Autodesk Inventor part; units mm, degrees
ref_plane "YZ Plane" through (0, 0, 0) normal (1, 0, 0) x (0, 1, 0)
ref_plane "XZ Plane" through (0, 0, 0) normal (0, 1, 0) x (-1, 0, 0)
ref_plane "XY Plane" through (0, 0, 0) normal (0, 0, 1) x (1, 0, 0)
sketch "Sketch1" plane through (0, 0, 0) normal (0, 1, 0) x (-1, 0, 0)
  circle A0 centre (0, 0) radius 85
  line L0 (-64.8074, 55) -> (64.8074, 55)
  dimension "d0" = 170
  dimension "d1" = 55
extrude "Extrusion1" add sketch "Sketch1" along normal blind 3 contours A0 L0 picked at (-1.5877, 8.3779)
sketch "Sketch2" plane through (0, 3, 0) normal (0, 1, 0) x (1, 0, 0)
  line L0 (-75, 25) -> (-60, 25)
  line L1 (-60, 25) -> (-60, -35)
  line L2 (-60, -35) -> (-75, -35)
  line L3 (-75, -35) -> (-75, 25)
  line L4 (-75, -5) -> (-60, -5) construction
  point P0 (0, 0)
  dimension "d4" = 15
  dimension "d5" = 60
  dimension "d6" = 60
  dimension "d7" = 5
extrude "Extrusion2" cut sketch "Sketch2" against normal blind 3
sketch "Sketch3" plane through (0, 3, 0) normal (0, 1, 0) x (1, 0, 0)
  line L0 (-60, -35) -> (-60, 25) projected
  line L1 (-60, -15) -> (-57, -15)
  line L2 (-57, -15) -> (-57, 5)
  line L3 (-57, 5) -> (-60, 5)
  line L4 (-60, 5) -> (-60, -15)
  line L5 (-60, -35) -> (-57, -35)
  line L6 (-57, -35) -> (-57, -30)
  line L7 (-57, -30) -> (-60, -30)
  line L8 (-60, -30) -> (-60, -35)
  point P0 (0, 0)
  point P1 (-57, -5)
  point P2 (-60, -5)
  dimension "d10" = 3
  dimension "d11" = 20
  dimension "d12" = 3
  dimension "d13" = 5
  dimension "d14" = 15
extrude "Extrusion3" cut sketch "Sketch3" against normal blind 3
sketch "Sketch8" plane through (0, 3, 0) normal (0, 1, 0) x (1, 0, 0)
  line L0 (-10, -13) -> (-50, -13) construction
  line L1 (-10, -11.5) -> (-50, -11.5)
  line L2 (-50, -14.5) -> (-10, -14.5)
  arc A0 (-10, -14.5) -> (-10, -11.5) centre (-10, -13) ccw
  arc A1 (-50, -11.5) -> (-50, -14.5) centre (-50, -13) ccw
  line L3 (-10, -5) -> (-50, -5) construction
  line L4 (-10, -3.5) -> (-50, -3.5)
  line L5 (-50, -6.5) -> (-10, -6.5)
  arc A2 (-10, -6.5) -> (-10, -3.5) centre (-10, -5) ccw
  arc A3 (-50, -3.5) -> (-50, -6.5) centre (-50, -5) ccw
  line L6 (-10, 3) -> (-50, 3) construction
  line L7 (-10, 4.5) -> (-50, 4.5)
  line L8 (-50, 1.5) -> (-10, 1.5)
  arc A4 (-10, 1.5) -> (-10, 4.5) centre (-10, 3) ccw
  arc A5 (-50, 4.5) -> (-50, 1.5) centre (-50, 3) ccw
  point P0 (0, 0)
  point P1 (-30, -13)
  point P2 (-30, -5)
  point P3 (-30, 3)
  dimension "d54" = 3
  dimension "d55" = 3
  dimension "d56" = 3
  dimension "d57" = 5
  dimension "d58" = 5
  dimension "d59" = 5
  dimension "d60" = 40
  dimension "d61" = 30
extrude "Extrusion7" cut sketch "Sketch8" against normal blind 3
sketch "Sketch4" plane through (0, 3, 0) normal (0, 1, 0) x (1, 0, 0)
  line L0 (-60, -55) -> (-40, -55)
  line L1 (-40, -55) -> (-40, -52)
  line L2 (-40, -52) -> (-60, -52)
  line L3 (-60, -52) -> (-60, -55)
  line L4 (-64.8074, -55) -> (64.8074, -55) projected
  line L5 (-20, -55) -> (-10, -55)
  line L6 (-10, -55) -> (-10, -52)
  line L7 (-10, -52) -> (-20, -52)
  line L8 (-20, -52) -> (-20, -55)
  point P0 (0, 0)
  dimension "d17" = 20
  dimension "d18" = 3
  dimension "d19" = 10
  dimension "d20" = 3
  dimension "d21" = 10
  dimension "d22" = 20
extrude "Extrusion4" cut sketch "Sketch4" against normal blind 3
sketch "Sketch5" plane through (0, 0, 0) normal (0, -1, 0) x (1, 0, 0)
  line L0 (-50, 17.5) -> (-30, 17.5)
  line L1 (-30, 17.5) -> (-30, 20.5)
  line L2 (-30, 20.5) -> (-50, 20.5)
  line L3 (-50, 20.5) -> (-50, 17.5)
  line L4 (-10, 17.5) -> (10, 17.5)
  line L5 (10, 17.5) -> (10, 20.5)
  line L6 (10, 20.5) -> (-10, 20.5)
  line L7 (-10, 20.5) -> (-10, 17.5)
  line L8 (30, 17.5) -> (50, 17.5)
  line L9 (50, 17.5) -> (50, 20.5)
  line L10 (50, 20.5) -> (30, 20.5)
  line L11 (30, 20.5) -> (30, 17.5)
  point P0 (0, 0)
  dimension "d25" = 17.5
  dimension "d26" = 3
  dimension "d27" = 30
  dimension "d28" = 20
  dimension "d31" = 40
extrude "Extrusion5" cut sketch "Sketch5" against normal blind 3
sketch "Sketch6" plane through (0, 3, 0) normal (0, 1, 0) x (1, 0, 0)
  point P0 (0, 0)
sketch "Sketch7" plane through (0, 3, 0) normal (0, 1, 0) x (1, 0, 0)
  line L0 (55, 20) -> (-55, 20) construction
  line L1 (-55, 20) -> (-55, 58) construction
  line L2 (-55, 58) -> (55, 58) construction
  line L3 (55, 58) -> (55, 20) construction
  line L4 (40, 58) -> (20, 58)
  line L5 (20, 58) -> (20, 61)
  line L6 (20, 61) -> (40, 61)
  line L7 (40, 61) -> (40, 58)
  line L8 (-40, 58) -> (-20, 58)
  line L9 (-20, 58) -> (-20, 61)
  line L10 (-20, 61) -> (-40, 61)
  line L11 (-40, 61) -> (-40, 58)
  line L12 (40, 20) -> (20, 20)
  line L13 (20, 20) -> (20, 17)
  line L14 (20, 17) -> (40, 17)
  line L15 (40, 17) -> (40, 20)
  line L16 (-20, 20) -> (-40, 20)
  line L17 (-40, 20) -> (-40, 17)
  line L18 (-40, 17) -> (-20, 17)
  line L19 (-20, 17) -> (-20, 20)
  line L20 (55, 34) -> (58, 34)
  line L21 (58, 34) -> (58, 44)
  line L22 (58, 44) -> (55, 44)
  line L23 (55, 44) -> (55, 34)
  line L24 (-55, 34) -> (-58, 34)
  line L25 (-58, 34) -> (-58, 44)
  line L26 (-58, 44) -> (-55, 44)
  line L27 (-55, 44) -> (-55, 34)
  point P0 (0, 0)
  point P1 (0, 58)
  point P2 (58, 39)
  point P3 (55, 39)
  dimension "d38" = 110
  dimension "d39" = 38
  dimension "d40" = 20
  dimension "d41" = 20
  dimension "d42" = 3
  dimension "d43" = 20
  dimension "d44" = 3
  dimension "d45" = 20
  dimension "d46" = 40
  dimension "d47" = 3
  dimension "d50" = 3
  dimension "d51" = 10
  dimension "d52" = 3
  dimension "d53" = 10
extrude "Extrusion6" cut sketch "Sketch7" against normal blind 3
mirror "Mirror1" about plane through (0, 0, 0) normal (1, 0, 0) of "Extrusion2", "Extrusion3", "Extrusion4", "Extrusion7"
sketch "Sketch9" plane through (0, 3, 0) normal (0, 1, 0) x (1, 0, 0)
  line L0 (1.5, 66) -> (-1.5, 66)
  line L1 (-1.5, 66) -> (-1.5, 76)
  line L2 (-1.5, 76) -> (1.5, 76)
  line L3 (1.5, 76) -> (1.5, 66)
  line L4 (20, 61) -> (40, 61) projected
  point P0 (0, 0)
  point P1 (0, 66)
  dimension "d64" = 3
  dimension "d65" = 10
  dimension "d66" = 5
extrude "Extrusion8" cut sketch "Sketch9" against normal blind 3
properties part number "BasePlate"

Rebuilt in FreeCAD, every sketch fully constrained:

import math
import FreeCAD as App
import Part
import Sketcher
Q = App.Units.Quantity


def add_polygon(sketch, points):
    """Adds a closed chain of lines whose ends are joined by coincident constraints."""
    first, n = sketch.GeometryCount, len(points)
    for a, b in zip(points, points[1:] + points[:1]):
        sketch.addGeometry(Part.LineSegment(App.Vector(*a, 0), App.Vector(*b, 0)), False)
    for i in range(n):
        sketch.addConstraint(Sketcher.Constraint("Coincident", first + i, 2, first + (i + 1) % n, 1))

doc = App.newDocument("Part")
body = doc.addObject("PartDesign::Body", "Body")

# Sketch on XZ plane
sketch1 = doc.addObject("Sketcher::SketchObject", "Sketch")
body.addObject(sketch1)
sketch1.AttachmentSupport = (doc.XZ_Plane, [""])
sketch1.MapMode = "FlatFace"
sketch1.addGeometry(Part.ArcOfCircle(Part.Circle(App.Vector(0, 0, 0), App.Vector(0, 0, 1), 85), math.radians(139.679782), math.radians(400.320218)), False)
sketch1.addGeometry(Part.LineSegment(App.Vector(64.8074, 55, 0), App.Vector(-64.8074, 55, 0)), False)
sketch1.addConstraint(Sketcher.Constraint("Coincident", 0, 1, 1, 2))
sketch1.addConstraint(Sketcher.Constraint("Coincident", 1, 1, 0, 2))
sketch1.addConstraint(Sketcher.Constraint("Horizontal", 1))
sketch1.addConstraint(Sketcher.Constraint("Coincident", 0, 3, -1, 1))
sketch1.addConstraint(Sketcher.Constraint("Radius", 0, Q("85 mm")))
sketch1.addConstraint(Sketcher.Constraint("DistanceY", -1, 1, 0, 1, Q("55 mm")))
pad1 = doc.addObject("PartDesign::Pad", "Pad")
body.addObject(pad1)
pad1.Profile = sketch1
pad1.Length = 3
pad1.Reversed = True

# Sketch on XZ plane
sketch2 = doc.addObject("Sketcher::SketchObject", "Sketch001")
body.addObject(sketch2)
sketch2.AttachmentSupport = (doc.XZ_Plane, [""])
sketch2.MapMode = "FlatFace"
sketch2.AttachmentOffset = App.Placement(App.Vector(0, 0, -3), App.Rotation())
add_polygon(sketch2, [(-60, -25), (-75, -25), (-75, 35), (-60, 35)])  # lines 0-3
sketch2.addConstraint(Sketcher.Constraint("Horizontal", 0))
sketch2.addConstraint(Sketcher.Constraint("Vertical", 1))
sketch2.addConstraint(Sketcher.Constraint("Horizontal", 2))
sketch2.addConstraint(Sketcher.Constraint("Vertical", 3))
sketch2.addConstraint(Sketcher.Constraint("DistanceX", 0, 2, 0, 1, Q("15 mm")))
sketch2.addConstraint(Sketcher.Constraint("DistanceY", 1, 1, 1, 2, Q("60 mm")))
sketch2.addConstraint(Sketcher.Constraint("DistanceX", 2, 2, -1, 1, Q("60 mm")))
sketch2.addConstraint(Sketcher.Constraint("DistanceY", 0, 2, -1, 1, Q("25 mm")))
pocket1 = doc.addObject("PartDesign::Pocket", "Pocket")
body.addObject(pocket1)
pocket1.Profile = sketch2
pocket1.Length = 3
pocket1.Reversed = True

# Sketch on XZ plane
sketch3 = doc.addObject("Sketcher::SketchObject", "Sketch002")
body.addObject(sketch3)
sketch3.AttachmentSupport = (doc.XZ_Plane, [""])
sketch3.MapMode = "FlatFace"
sketch3.AttachmentOffset = App.Placement(App.Vector(0, 0, -3), App.Rotation())
add_polygon(sketch3, [(-60, -5), (-60, 15), (-57, 15), (-57, -5)])  # lines 0-3
add_polygon(sketch3, [(-60, 30), (-60, 35), (-57, 35), (-57, 30)])  # lines 4-7
sketch3.addConstraint(Sketcher.Constraint("Vertical", 0))
sketch3.addConstraint(Sketcher.Constraint("Horizontal", 1))
sketch3.addConstraint(Sketcher.Constraint("Vertical", 2))
sketch3.addConstraint(Sketcher.Constraint("Horizontal", 3))
sketch3.addConstraint(Sketcher.Constraint("Vertical", 4))
sketch3.addConstraint(Sketcher.Constraint("Horizontal", 5))
sketch3.addConstraint(Sketcher.Constraint("Vertical", 6))
sketch3.addConstraint(Sketcher.Constraint("Horizontal", 7))
sketch3.addConstraint(Sketcher.Constraint("Vertical", 3, 2, 4, 2))
sketch3.addConstraint(Sketcher.Constraint("Vertical", 2, 2, 5, 2))
sketch3.addConstraint(Sketcher.Constraint("DistanceX", 1, 1, 1, 2, Q("3 mm")))
sketch3.addConstraint(Sketcher.Constraint("DistanceY", 0, 1, 0, 2, Q("20 mm")))
sketch3.addConstraint(Sketcher.Constraint("DistanceY", 4, 1, 4, 2, Q("5 mm")))
sketch3.addConstraint(Sketcher.Constraint("DistanceY", -1, 1, 0, 2, Q("15 mm")))
sketch3.addConstraint(Sketcher.Constraint("DistanceY", 0, 2, 4, 2, Q("20 mm")))
sketch3.addConstraint(Sketcher.Constraint("DistanceX", 0, 2, -1, 1, Q("60 mm")))
pocket2 = doc.addObject("PartDesign::Pocket", "Pocket001")
body.addObject(pocket2)
pocket2.Profile = sketch3
pocket2.Length = 3
pocket2.Reversed = True

# Sketch on XZ plane
sketch4 = doc.addObject("Sketcher::SketchObject", "Sketch003")
body.addObject(sketch4)
sketch4.AttachmentSupport = (doc.XZ_Plane, [""])
sketch4.MapMode = "FlatFace"
sketch4.AttachmentOffset = App.Placement(App.Vector(0, 0, -3), App.Rotation())
sketch4.addGeometry(Part.ArcOfCircle(Part.Circle(App.Vector(-10, 13, 0), App.Vector(0, 0, 1), 1.5), math.radians(-90), math.radians(90)), False)
sketch4.addGeometry(Part.LineSegment(App.Vector(-10, 11.5, 0), App.Vector(-50, 11.5, 0)), False)
sketch4.addGeometry(Part.ArcOfCircle(Part.Circle(App.Vector(-50, 13, 0), App.Vector(0, 0, 1), 1.5), math.radians(90), math.radians(270)), False)
sketch4.addGeometry(Part.LineSegment(App.Vector(-50, 14.5, 0), App.Vector(-10, 14.5, 0)), False)
sketch4.addGeometry(Part.ArcOfCircle(Part.Circle(App.Vector(-10, 5, 0), App.Vector(0, 0, 1), 1.5), math.radians(-90), math.radians(90)), False)
sketch4.addGeometry(Part.LineSegment(App.Vector(-10, 3.5, 0), App.Vector(-50, 3.5, 0)), False)
sketch4.addGeometry(Part.ArcOfCircle(Part.Circle(App.Vector(-50, 5, 0), App.Vector(0, 0, 1), 1.5), math.radians(90), math.radians(270)), False)
sketch4.addGeometry(Part.LineSegment(App.Vector(-50, 6.5, 0), App.Vector(-10, 6.5, 0)), False)
sketch4.addGeometry(Part.ArcOfCircle(Part.Circle(App.Vector(-10, -3, 0), App.Vector(0, 0, 1), 1.5), math.radians(-90), math.radians(90)), False)
sketch4.addGeometry(Part.LineSegment(App.Vector(-10, -4.5, 0), App.Vector(-50, -4.5, 0)), False)
sketch4.addGeometry(Part.ArcOfCircle(Part.Circle(App.Vector(-50, -3, 0), App.Vector(0, 0, 1), 1.5), math.radians(90), math.radians(270)), False)
sketch4.addGeometry(Part.LineSegment(App.Vector(-50, -1.5, 0), App.Vector(-10, -1.5, 0)), False)
sketch4.addConstraint(Sketcher.Constraint("Tangent", 0, 1, 1, 1))
sketch4.addConstraint(Sketcher.Constraint("Tangent", 1, 2, 2, 2))
sketch4.addConstraint(Sketcher.Constraint("Tangent", 2, 1, 3, 1))
sketch4.addConstraint(Sketcher.Constraint("Tangent", 3, 2, 0, 2))
sketch4.addConstraint(Sketcher.Constraint("Tangent", 4, 1, 5, 1))
sketch4.addConstraint(Sketcher.Constraint("Tangent", 5, 2, 6, 2))
sketch4.addConstraint(Sketcher.Constraint("Tangent", 6, 1, 7, 1))
sketch4.addConstraint(Sketcher.Constraint("Tangent", 7, 2, 4, 2))
sketch4.addConstraint(Sketcher.Constraint("Tangent", 8, 1, 9, 1))
sketch4.addConstraint(Sketcher.Constraint("Tangent", 9, 2, 10, 2))
sketch4.addConstraint(Sketcher.Constraint("Tangent", 10, 1, 11, 1))
sketch4.addConstraint(Sketcher.Constraint("Tangent", 11, 2, 8, 2))
sketch4.addConstraint(Sketcher.Constraint("Horizontal", 1))
sketch4.addConstraint(Sketcher.Constraint("Horizontal", 3))
sketch4.addConstraint(Sketcher.Constraint("Horizontal", 5))
sketch4.addConstraint(Sketcher.Constraint("Horizontal", 7))
sketch4.addConstraint(Sketcher.Constraint("Horizontal", 9))
sketch4.addConstraint(Sketcher.Constraint("Horizontal", 11))
sketch4.addConstraint(Sketcher.Constraint("Equal", 2, 4))
sketch4.addConstraint(Sketcher.Constraint("Equal", 6, 8))
sketch4.addConstraint(Sketcher.Constraint("Vertical", 0, 3, 4, 3))
sketch4.addConstraint(Sketcher.Constraint("Vertical", 2, 3, 6, 3))
sketch4.addConstraint(Sketcher.Constraint("Vertical", 4, 3, 8, 3))
sketch4.addConstraint(Sketcher.Constraint("Vertical", 6, 3, 10, 3))
sketch4.addConstraint(Sketcher.Constraint("Radius", 0, Q("1.5 mm")))
sketch4.addConstraint(Sketcher.Constraint("DistanceX", 1, 2, 1, 1, Q("40 mm")))
sketch4.addConstraint(Sketcher.Constraint("DistanceY", -1, 1, 4, 3, Q("5 mm")))
sketch4.addConstraint(Sketcher.Constraint("DistanceY", 8, 3, -1, 1, Q("3 mm")))
sketch4.addConstraint(Sketcher.Constraint("DistanceY", 6, 1, 1, 2, Q("5 mm")))
sketch4.addConstraint(Sketcher.Constraint("DistanceX", 0, 3, -1, 1, Q("10 mm")))
pocket3 = doc.addObject("PartDesign::Pocket", "Pocket002")
body.addObject(pocket3)
pocket3.Profile = sketch4
pocket3.Length = 3
pocket3.Reversed = True

# Sketch on XZ plane
sketch5 = doc.addObject("Sketcher::SketchObject", "Sketch004")
body.addObject(sketch5)
sketch5.AttachmentSupport = (doc.XZ_Plane, [""])
sketch5.MapMode = "FlatFace"
sketch5.AttachmentOffset = App.Placement(App.Vector(0, 0, -3), App.Rotation())
add_polygon(sketch5, [(-60, 52), (-60, 55), (-40, 55), (-40, 52)])  # lines 0-3
add_polygon(sketch5, [(-20, 52), (-20, 55), (-10, 55), (-10, 52)])  # lines 4-7
sketch5.addConstraint(Sketcher.Constraint("Vertical", 0))
sketch5.addConstraint(Sketcher.Constraint("Horizontal", 1))
sketch5.addConstraint(Sketcher.Constraint("Vertical", 2))
sketch5.addConstraint(Sketcher.Constraint("Horizontal", 3))
sketch5.addConstraint(Sketcher.Constraint("Vertical", 4))
sketch5.addConstraint(Sketcher.Constraint("Horizontal", 5))
sketch5.addConstraint(Sketcher.Constraint("Vertical", 6))
sketch5.addConstraint(Sketcher.Constraint("Horizontal", 7))
sketch5.addConstraint(Sketcher.Constraint("Horizontal", 1, 2, 4, 2))
sketch5.addConstraint(Sketcher.Constraint("Horizontal", 3, 2, 6, 2))
sketch5.addConstraint(Sketcher.Constraint("DistanceX", 1, 1, 1, 2, Q("20 mm")))
sketch5.addConstraint(Sketcher.Constraint("DistanceX", 5, 1, 5, 2, Q("10 mm")))
sketch5.addConstraint(Sketcher.Constraint("DistanceY", 0, 1, 0, 2, Q("3 mm")))
sketch5.addConstraint(Sketcher.Constraint("DistanceX", 4, 2, -1, 1, Q("20 mm")))
sketch5.addConstraint(Sketcher.Constraint("DistanceX", 1, 2, 4, 2, Q("20 mm")))
sketch5.addConstraint(Sketcher.Constraint("DistanceY", -1, 1, 0, 2, Q("55 mm")))
pocket4 = doc.addObject("PartDesign::Pocket", "Pocket003")
body.addObject(pocket4)
pocket4.Profile = sketch5
pocket4.Length = 3
pocket4.Reversed = True

# Sketch on XZ plane
sketch6 = doc.addObject("Sketcher::SketchObject", "Sketch005")
body.addObject(sketch6)
sketch6.AttachmentSupport = (doc.XZ_Plane, [""])
sketch6.MapMode = "FlatFace"
add_polygon(sketch6, [(-50, 20.5), (-50, 17.5), (-30, 17.5), (-30, 20.5)])  # lines 0-3
add_polygon(sketch6, [(-10, 20.5), (-10, 17.5), (10, 17.5), (10, 20.5)])  # lines 4-7
add_polygon(sketch6, [(30, 20.5), (30, 17.5), (50, 17.5), (50, 20.5)])  # lines 8-11
sketch6.addConstraint(Sketcher.Constraint("Vertical", 0))
sketch6.addConstraint(Sketcher.Constraint("Horizontal", 1))
sketch6.addConstraint(Sketcher.Constraint("Vertical", 2))
sketch6.addConstraint(Sketcher.Constraint("Horizontal", 3))
sketch6.addConstraint(Sketcher.Constraint("Vertical", 4))
sketch6.addConstraint(Sketcher.Constraint("Horizontal", 5))
sketch6.addConstraint(Sketcher.Constraint("Vertical", 6))
sketch6.addConstraint(Sketcher.Constraint("Horizontal", 7))
sketch6.addConstraint(Sketcher.Constraint("Vertical", 8))
sketch6.addConstraint(Sketcher.Constraint("Horizontal", 9))
sketch6.addConstraint(Sketcher.Constraint("Vertical", 10))
sketch6.addConstraint(Sketcher.Constraint("Horizontal", 11))
sketch6.addConstraint(Sketcher.Constraint("Symmetric", 1, 2, 8, 2, -2))
sketch6.addConstraint(Sketcher.Constraint("Symmetric", 3, 2, 10, 2, -2))
sketch6.addConstraint(Sketcher.Constraint("Horizontal", 1, 2, 4, 2))
sketch6.addConstraint(Sketcher.Constraint("Horizontal", 3, 2, 6, 2))
sketch6.addConstraint(Sketcher.Constraint("Equal", 3, 5))
sketch6.addConstraint(Sketcher.Constraint("DistanceX", 1, 1, 1, 2, Q("20 mm")))
sketch6.addConstraint(Sketcher.Constraint("DistanceY", 0, 2, 0, 1, Q("3 mm")))
sketch6.addConstraint(Sketcher.Constraint("DistanceX", 1, 2, -1, 1, Q("30 mm")))
sketch6.addConstraint(Sketcher.Constraint("DistanceX", 4, 2, -1, 1, Q("10 mm")))
sketch6.addConstraint(Sketcher.Constraint("DistanceY", -1, 1, 0, 2, Q("17.5 mm")))
pocket5 = doc.addObject("PartDesign::Pocket", "Pocket004")
body.addObject(pocket5)
pocket5.Profile = sketch6
pocket5.Length = 3

# Sketch on XZ plane
sketch7 = doc.addObject("Sketcher::SketchObject", "Sketch006")
body.addObject(sketch7)
sketch7.AttachmentSupport = (doc.XZ_Plane, [""])
sketch7.MapMode = "FlatFace"
sketch7.AttachmentOffset = App.Placement(App.Vector(0, 0, -3), App.Rotation())
add_polygon(sketch7, [(20, -58), (40, -58), (40, -61), (20, -61)])  # lines 0-3
add_polygon(sketch7, [(-40, -61), (-40, -58), (-20, -58), (-20, -61)])  # lines 4-7
add_polygon(sketch7, [(40, -17), (40, -20), (20, -20), (20, -17)])  # lines 8-11
add_polygon(sketch7, [(-20, -17), (-20, -20), (-40, -20), (-40, -17)])  # lines 12-15
add_polygon(sketch7, [(55, -44), (55, -34), (58, -34), (58, -44)])  # lines 16-19
add_polygon(sketch7, [(-58, -34), (-55, -34), (-55, -44), (-58, -44)])  # lines 20-23
sketch7.addConstraint(Sketcher.Constraint("Horizontal", 0))
sketch7.addConstraint(Sketcher.Constraint("Vertical", 1))
sketch7.addConstraint(Sketcher.Constraint("Horizontal", 2))
sketch7.addConstraint(Sketcher.Constraint("Vertical", 3))
sketch7.addConstraint(Sketcher.Constraint("Vertical", 4))
sketch7.addConstraint(Sketcher.Constraint("Horizontal", 5))
sketch7.addConstraint(Sketcher.Constraint("Vertical", 6))
sketch7.addConstraint(Sketcher.Constraint("Horizontal", 7))
sketch7.addConstraint(Sketcher.Constraint("Vertical", 8))
sketch7.addConstraint(Sketcher.Constraint("Horizontal", 9))
sketch7.addConstraint(Sketcher.Constraint("Vertical", 10))
sketch7.addConstraint(Sketcher.Constraint("Horizontal", 11))
sketch7.addConstraint(Sketcher.Constraint("Vertical", 12))
sketch7.addConstraint(Sketcher.Constraint("Horizontal", 13))
sketch7.addConstraint(Sketcher.Constraint("Vertical", 14))
sketch7.addConstraint(Sketcher.Constraint("Horizontal", 15))
sketch7.addConstraint(Sketcher.Constraint("Vertical", 16))
sketch7.addConstraint(Sketcher.Constraint("Horizontal", 17))
sketch7.addConstraint(Sketcher.Constraint("Vertical", 18))
sketch7.addConstraint(Sketcher.Constraint("Horizontal", 19))
sketch7.addConstraint(Sketcher.Constraint("Horizontal", 20))
sketch7.addConstraint(Sketcher.Constraint("Vertical", 21))
sketch7.addConstraint(Sketcher.Constraint("Horizontal", 22))
sketch7.addConstraint(Sketcher.Constraint("Vertical", 23))
sketch7.addConstraint(Sketcher.Constraint("Symmetric", 0, 2, 4, 2, -2))
sketch7.addConstraint(Sketcher.Constraint("Symmetric", 2, 2, 6, 2, -2))
sketch7.addConstraint(Sketcher.Constraint("Symmetric", 9, 2, 12, 2, -2))
sketch7.addConstraint(Sketcher.Constraint("Symmetric", 11, 2, 14, 2, -2))
sketch7.addConstraint(Sketcher.Constraint("Symmetric", 16, 2, 20, 2, -2))
sketch7.addConstraint(Sketcher.Constraint("Symmetric", 18, 2, 22, 2, -2))
sketch7.addConstraint(Sketcher.Constraint("Vertical", 1, 2, 8, 2))
sketch7.addConstraint(Sketcher.Constraint("Vertical", 3, 2, 9, 2))
sketch7.addConstraint(Sketcher.Constraint("Equal", 22, 1))
sketch7.addConstraint(Sketcher.Constraint("Equal", 6, 8))
sketch7.addConstraint(Sketcher.Constraint("DistanceX", 0, 1, 0, 2, Q("20 mm")))
sketch7.addConstraint(Sketcher.Constraint("DistanceX", 17, 1, 17, 2, Q("3 mm")))
sketch7.addConstraint(Sketcher.Constraint("DistanceY", 16, 1, 16, 2, Q("10 mm")))
sketch7.addConstraint(Sketcher.Constraint("DistanceX", -1, 1, 0, 2, Q("40 mm")))
sketch7.addConstraint(Sketcher.Constraint("DistanceY", 8, 2, -1, 1, Q("20 mm")))
sketch7.addConstraint(Sketcher.Constraint("DistanceY", 0, 2, 8, 2, Q("38 mm")))
sketch7.addConstraint(Sketcher.Constraint("DistanceX", -1, 1, 16, 2, Q("55 mm")))
sketch7.addConstraint(Sketcher.Constraint("DistanceY", 16, 2, -1, 1, Q("34 mm")))
pocket6 = doc.addObject("PartDesign::Pocket", "Pocket005")
body.addObject(pocket6)
pocket6.Profile = sketch7
pocket6.Length = 3
pocket6.Reversed = True
doc.recompute()

mirrored = doc.addObject("PartDesign::Mirrored", "Mirrored")
body.addObject(mirrored)
mirrored.Originals = [pocket1, pocket2, pocket4, pocket3]
mirrored.MirrorPlane = (doc.YZ_Plane, [""])
body.Tip = mirrored

# Sketch on XZ plane
sketch8 = doc.addObject("Sketcher::SketchObject", "Sketch007")
body.addObject(sketch8)
sketch8.AttachmentSupport = (doc.XZ_Plane, [""])
sketch8.MapMode = "FlatFace"
sketch8.AttachmentOffset = App.Placement(App.Vector(0, 0, -3), App.Rotation())
add_polygon(sketch8, [(-1.5, -66), (1.5, -66), (1.5, -76), (-1.5, -76)])  # lines 0-3
sketch8.addConstraint(Sketcher.Constraint("Horizontal", 0))
sketch8.addConstraint(Sketcher.Constraint("Vertical", 1))
sketch8.addConstraint(Sketcher.Constraint("Horizontal", 2))
sketch8.addConstraint(Sketcher.Constraint("Vertical", 3))
sketch8.addConstraint(Sketcher.Constraint("DistanceX", 0, 1, 0, 2, Q("3 mm")))
sketch8.addConstraint(Sketcher.Constraint("DistanceY", 1, 2, 1, 1, Q("10 mm")))
sketch8.addConstraint(Sketcher.Constraint("DistanceY", 0, 2, -1, 1, Q("66 mm")))
sketch8.addConstraint(Sketcher.Constraint("DistanceX", -1, 1, 0, 2, Q("1.5 mm")))
pocket7 = doc.addObject("PartDesign::Pocket", "Pocket006")
body.addObject(pocket7)
pocket7.Profile = sketch8
pocket7.Length = 3
pocket7.Reversed = True

doc.recompute()
